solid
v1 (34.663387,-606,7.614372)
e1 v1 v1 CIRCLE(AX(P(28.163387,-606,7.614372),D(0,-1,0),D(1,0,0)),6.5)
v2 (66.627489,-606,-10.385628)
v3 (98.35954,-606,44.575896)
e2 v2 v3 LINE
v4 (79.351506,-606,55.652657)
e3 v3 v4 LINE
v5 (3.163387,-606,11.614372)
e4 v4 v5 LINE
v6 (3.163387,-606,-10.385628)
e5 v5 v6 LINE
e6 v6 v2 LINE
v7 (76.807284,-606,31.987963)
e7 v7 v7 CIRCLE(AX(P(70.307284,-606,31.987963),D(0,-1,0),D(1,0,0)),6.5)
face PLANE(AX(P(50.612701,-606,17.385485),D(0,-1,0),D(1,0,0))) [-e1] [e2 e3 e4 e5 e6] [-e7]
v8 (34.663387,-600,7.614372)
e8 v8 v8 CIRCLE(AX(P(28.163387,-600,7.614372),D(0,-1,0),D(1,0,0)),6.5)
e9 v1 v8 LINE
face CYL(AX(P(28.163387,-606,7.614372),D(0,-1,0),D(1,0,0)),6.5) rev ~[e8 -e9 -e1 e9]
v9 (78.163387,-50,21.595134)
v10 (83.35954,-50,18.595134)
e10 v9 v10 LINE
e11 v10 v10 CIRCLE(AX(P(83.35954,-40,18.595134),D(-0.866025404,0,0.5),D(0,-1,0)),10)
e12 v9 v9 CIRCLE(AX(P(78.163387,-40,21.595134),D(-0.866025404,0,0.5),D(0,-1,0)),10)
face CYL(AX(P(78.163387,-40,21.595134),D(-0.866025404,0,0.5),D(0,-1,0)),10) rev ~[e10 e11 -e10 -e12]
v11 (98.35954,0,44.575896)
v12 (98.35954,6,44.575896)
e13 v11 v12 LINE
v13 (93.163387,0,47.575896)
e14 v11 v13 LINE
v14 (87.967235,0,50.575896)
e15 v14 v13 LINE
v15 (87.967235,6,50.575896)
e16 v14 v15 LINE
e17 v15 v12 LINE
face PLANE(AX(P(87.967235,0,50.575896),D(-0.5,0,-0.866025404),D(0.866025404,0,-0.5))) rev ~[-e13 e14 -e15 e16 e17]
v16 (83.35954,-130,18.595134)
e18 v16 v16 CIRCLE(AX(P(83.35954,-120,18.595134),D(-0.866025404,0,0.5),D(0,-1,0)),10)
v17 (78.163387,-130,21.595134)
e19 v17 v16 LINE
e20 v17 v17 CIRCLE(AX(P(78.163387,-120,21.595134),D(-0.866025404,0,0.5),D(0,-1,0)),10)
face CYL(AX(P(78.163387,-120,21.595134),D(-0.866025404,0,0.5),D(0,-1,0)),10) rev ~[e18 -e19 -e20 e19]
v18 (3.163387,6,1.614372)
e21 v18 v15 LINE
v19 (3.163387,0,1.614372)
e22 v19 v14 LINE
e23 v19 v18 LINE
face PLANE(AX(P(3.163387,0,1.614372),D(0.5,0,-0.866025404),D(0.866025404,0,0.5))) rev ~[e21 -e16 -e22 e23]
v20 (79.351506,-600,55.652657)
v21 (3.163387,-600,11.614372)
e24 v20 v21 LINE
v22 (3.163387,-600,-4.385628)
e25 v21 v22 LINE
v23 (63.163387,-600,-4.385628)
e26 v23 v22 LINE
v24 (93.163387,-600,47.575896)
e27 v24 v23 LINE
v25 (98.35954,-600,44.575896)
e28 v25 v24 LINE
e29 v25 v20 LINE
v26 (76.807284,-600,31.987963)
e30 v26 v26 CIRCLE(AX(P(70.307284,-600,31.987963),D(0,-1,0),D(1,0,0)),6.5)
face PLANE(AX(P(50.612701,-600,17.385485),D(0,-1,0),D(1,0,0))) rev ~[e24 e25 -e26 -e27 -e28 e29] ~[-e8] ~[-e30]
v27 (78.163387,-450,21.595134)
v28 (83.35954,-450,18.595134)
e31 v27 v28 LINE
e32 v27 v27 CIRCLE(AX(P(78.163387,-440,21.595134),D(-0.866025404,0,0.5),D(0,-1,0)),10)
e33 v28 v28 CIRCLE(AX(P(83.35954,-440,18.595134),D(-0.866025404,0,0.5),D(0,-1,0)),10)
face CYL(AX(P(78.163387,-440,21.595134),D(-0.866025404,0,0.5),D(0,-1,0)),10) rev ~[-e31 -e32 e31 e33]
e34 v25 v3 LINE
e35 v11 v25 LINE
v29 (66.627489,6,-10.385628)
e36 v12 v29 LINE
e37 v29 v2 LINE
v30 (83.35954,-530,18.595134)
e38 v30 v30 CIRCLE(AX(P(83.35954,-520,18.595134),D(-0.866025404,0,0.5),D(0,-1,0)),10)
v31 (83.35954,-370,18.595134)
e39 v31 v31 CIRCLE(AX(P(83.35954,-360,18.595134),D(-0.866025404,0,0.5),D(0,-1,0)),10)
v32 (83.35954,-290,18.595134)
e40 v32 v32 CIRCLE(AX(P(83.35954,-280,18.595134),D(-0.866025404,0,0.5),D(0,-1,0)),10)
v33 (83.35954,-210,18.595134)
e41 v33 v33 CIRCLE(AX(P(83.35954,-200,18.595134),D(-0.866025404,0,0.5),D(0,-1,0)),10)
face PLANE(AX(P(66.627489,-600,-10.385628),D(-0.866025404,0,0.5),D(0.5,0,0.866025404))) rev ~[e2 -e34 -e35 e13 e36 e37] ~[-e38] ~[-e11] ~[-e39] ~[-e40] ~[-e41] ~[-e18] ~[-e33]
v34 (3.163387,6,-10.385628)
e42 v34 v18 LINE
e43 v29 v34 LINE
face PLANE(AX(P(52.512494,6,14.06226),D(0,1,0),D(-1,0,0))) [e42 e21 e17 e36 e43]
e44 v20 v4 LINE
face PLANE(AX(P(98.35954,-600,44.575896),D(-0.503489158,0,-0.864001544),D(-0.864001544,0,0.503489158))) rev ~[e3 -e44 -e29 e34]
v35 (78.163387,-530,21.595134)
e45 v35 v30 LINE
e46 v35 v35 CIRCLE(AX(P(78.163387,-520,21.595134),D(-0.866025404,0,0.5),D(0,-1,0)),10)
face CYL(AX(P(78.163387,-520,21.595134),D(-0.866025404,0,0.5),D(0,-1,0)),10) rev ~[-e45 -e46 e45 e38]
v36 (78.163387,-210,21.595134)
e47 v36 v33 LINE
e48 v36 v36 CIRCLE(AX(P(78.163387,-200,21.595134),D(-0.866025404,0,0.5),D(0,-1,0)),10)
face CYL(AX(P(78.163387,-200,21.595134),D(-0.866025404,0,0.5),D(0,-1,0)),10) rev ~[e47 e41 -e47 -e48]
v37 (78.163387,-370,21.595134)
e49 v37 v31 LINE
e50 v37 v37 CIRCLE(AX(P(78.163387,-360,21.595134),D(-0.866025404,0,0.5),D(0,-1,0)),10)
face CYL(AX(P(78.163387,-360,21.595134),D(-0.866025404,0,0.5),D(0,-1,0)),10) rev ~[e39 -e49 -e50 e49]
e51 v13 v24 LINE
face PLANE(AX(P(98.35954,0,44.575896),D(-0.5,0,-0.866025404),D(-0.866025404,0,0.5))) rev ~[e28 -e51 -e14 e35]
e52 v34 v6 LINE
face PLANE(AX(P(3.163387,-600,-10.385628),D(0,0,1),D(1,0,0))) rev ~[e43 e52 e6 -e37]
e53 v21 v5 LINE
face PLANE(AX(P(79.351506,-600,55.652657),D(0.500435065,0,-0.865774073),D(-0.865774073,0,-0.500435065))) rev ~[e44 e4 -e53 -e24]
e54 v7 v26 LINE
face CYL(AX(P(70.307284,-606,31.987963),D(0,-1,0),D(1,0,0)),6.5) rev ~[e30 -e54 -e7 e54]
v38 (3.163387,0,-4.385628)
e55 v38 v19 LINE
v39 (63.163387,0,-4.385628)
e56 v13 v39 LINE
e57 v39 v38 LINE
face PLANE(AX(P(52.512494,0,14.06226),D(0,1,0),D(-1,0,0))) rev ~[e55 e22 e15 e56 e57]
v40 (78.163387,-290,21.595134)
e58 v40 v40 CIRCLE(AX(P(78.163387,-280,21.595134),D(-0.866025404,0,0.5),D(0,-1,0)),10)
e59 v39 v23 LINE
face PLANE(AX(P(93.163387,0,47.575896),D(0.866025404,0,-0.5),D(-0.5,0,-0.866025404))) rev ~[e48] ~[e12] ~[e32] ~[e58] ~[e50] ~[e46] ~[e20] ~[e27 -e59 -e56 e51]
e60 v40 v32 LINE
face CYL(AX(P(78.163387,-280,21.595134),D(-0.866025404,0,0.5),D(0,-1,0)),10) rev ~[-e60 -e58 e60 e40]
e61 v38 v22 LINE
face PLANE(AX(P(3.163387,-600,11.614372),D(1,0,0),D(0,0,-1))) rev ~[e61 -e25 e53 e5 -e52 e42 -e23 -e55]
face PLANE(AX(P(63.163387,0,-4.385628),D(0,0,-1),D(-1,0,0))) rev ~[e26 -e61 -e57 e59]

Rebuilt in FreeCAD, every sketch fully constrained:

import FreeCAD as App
import Part
import Sketcher
from FreeCAD import Vector
Q = App.Units.Quantity

doc = App.newDocument("Part")
body = doc.addObject("PartDesign::Body", "Body")

# Sketch on XZ plane
sketch1 = body.newObject("Sketcher::SketchObject", "Sketch")
sketch1.AttachmentSupport = (doc.getObject("XZ_Plane"), [""])
sketch1.MapMode = "FlatFace"
sketch1.addGeometry([
    Part.LineSegment(Vector(3, -4, 0), Vector(3, -10, 0)),  # 0
    Part.LineSegment(Vector(3, -10, 0), Vector(67, -10, 0)),  # 1
    Part.LineSegment(Vector(67, -10, 0), Vector(98, 45, 0)),  # 2
    Part.LineSegment(Vector(98, 45, 0), Vector(93, 48, 0)),  # 3
    Part.LineSegment(Vector(93, 48, 0), Vector(63, -4, 0)),  # 4
    Part.LineSegment(Vector(63, -4, 0), Vector(3, -4, 0)),  # 5
], False)
sketch1.addConstraint([
    Sketcher.Constraint("Coincident", 0, 2, 1, 1),
    Sketcher.Constraint("Coincident", 1, 2, 2, 1),
    Sketcher.Constraint("Coincident", 2, 2, 3, 1),
    Sketcher.Constraint("Coincident", 3, 2, 4, 1),
    Sketcher.Constraint("Coincident", 4, 2, 5, 1),
    Sketcher.Constraint("Coincident", 5, 2, 0, 1),
    Sketcher.Constraint("Vertical", 0),
    Sketcher.Constraint("Horizontal", 1),
    Sketcher.Constraint("Horizontal", 5),
    Sketcher.Constraint("Perpendicular", 2, 3),
    Sketcher.Constraint("Perpendicular", 3, 4),
    Sketcher.Constraint("DistanceX", 5, 2, 5, 1, 60.0),
    Sketcher.Constraint("DistanceY", 0, 2, 0, 1, 6.0),
    Sketcher.Constraint("Angle", 2, Q("60 deg")),
    Sketcher.Constraint("Distance", 3, 6.0),
    Sketcher.Constraint("Distance", 4, 60.0),
    Sketcher.Constraint("DistanceY", 0, 2, -1, 1, 10.385628),
    Sketcher.Constraint("DistanceX", -1, 1, 1, 2, 66.627489),
])
pad1 = body.newObject("PartDesign::Pad", "Pad")
pad1.Profile = sketch1
pad1.Length = 600

# Sketch on XZ plane
sketch2 = body.newObject("Sketcher::SketchObject", "Sketch001")
sketch2.AttachmentSupport = (doc.getObject("XZ_Plane"), [""])
sketch2.MapMode = "FlatFace"
sketch2.addGeometry([
    Part.LineSegment(Vector(3, -10, 0), Vector(3, 2, 0)),  # 0
    Part.LineSegment(Vector(3, 2, 0), Vector(88, 51, 0)),  # 1
    Part.LineSegment(Vector(88, 51, 0), Vector(98, 45, 0)),  # 2
    Part.LineSegment(Vector(98, 45, 0), Vector(67, -10, 0)),  # 3
    Part.LineSegment(Vector(67, -10, 0), Vector(3, -10, 0)),  # 4
], False)
sketch2.addConstraint([
    Sketcher.Constraint("Coincident", 0, 2, 1, 1),
    Sketcher.Constraint("Coincident", 1, 2, 2, 1),
    Sketcher.Constraint("Coincident", 2, 2, 3, 1),
    Sketcher.Constraint("Coincident", 3, 2, 4, 1),
    Sketcher.Constraint("Coincident", 4, 2, 0, 1),
    Sketcher.Constraint("Vertical", 0),
    Sketcher.Constraint("Horizontal", 4),
    Sketcher.Constraint("Perpendicular", 2, 3),
    Sketcher.Constraint("DistanceY", 0, 1, 0, 2, 12.0),
    Sketcher.Constraint("Angle", 1, Q("30 deg")),
    Sketcher.Constraint("Angle", 2, Q("-30 deg")),
    Sketcher.Constraint("Distance", 2, 12.0),
    Sketcher.Constraint("DistanceX", 4, 2, 4, 1, 63.464102),
    Sketcher.Constraint("DistanceY", -1, 1, 0, 2, 1.614372),
    Sketcher.Constraint("DistanceX", -1, 1, 2, 2, 98.35954),
])
pad2 = body.newObject("PartDesign::Pad", "Pad001")
pad2.Profile = sketch2
pad2.Length = 6
pad2.Reversed = True

# Sketch on an angled plane
sketch3 = body.newObject("Sketcher::SketchObject", "Sketch002")
sketch3.Placement = App.Placement(Vector(49.271573, 0, -28.446956), App.Rotation(Vector(0, -1, 0), Vector(0.5, 0, 0.866025404), Vector(-0.866025404, 0, 0.5), "ZXY"))
sketch3.addGeometry([
    Part.Circle(Vector(40, 58, 0), Vector(0, 0, 1), 10),  # 0
    Part.Circle(Vector(120, 58, 0), Vector(0, 0, 1), 10),  # 1
    Part.Circle(Vector(200, 58, 0), Vector(0, 0, 1), 10),  # 2
    Part.Circle(Vector(360, 58, 0), Vector(0, 0, 1), 10),  # 3
    Part.Circle(Vector(280, 58, 0), Vector(0, 0, 1), 10),  # 4
    Part.Circle(Vector(520, 58, 0), Vector(0, 0, 1), 10),  # 5
    Part.Circle(Vector(440, 58, 0), Vector(0, 0, 1), 10),  # 6
], False)
sketch3.addConstraint([
    Sketcher.Constraint("Equal", 0, 1),
    Sketcher.Constraint("Equal", 1, 2),
    Sketcher.Constraint("Equal", 2, 3),
    Sketcher.Constraint("Equal", 3, 4),
    Sketcher.Constraint("Equal", 4, 5),
    Sketcher.Constraint("Equal", 5, 6),
    Sketcher.Constraint("Horizontal", 0, 3, 1, 3),
    Sketcher.Constraint("Horizontal", 1, 3, 2, 3),
    Sketcher.Constraint("Horizontal", 2, 3, 3, 3),
    Sketcher.Constraint("Horizontal", 3, 3, 4, 3),
    Sketcher.Constraint("Horizontal", 4, 3, 5, 3),
    Sketcher.Constraint("Horizontal", 5, 3, 6, 3),
    Sketcher.Constraint("Diameter", 0, 20.0),
    Sketcher.Constraint("DistanceX", -1, 1, 0, 3, 40.0),
    Sketcher.Constraint("DistanceX", -1, 1, 1, 3, 120.0),
    Sketcher.Constraint("DistanceX", -1, 1, 2, 3, 200.0),
    Sketcher.Constraint("DistanceX", -1, 1, 3, 3, 360.0),
    Sketcher.Constraint("DistanceX", -1, 1, 4, 3, 280.0),
    Sketcher.Constraint("DistanceX", -1, 1, 5, 3, 520.0),
    Sketcher.Constraint("DistanceX", -1, 1, 6, 3, 440.0),
    Sketcher.Constraint("DistanceY", -1, 1, 0, 3, 57.783628),
])
pocket1 = body.newObject("PartDesign::Pocket", "Pocket")
pocket1.Profile = sketch3
pocket1.Length = 25

# Sketch on XZ plane
sketch4 = body.newObject("Sketcher::SketchObject", "Sketch003")
sketch4.AttachmentSupport = (doc.getObject("XZ_Plane"), [""])
sketch4.MapMode = "FlatFace"
sketch4.AttachmentOffset = App.Placement(Vector(0, 0, 600), App.Rotation())
sketch4.addGeometry([
    Part.LineSegment(Vector(3, 12, 0), Vector(3, -10, 0)),  # 0
    Part.LineSegment(Vector(3, -10, 0), Vector(67, -10, 0)),  # 1
    Part.LineSegment(Vector(67, -10, 0), Vector(98, 45, 0)),  # 2
    Part.LineSegment(Vector(98, 45, 0), Vector(79, 56, 0)),  # 3
    Part.LineSegment(Vector(79, 56, 0), Vector(3, 12, 0)),  # 4
], False)
sketch4.addConstraint([
    Sketcher.Constraint("Coincident", 0, 2, 1, 1),
    Sketcher.Constraint("Coincident", 1, 2, 2, 1),
    Sketcher.Constraint("Coincident", 2, 2, 3, 1),
    Sketcher.Constraint("Coincident", 3, 2, 4, 1),
    Sketcher.Constraint("Coincident", 4, 2, 0, 1),
    Sketcher.Constraint("Vertical", 0),
    Sketcher.Constraint("Horizontal", 1),
    Sketcher.Constraint("DistanceY", 0, 2, 0, 1, 22.0),
    Sketcher.Constraint("Angle", 2, Q("60 deg")),
    Sketcher.Constraint("Distance", 3, 22.0),
    Sketcher.Constraint("Distance", 4, 88.0),
    Sketcher.Constraint("DistanceX", 1, 1, 1, 2, 63.464102),
    Sketcher.Constraint("Distance", 2, 63.464102),
    Sketcher.Constraint("DistanceY", 0, 2, -1, 1, 10.385628),
    Sketcher.Constraint("DistanceX", -1, 1, 1, 2, 66.627489),
])
pad3 = body.newObject("PartDesign::Pad", "Pad002")
pad3.Profile = sketch4
pad3.Length = 6

# Sketch on XZ plane
sketch5 = body.newObject("Sketcher::SketchObject", "Sketch004")
sketch5.AttachmentSupport = (doc.getObject("XZ_Plane"), [""])
sketch5.MapMode = "FlatFace"
sketch5.AttachmentOffset = App.Placement(Vector(0, 0, 606), App.Rotation())
sketch5.addGeometry([
    Part.Circle(Vector(70, 32, 0), Vector(0, 0, 1), 6),
    Part.Circle(Vector(28, 8, 0), Vector(0, 0, 1), 6),
], False)
sketch5.addConstraint([
    Sketcher.Constraint("Equal", 0, 1),
    Sketcher.Constraint("Diameter", 0, 13.0),
    Sketcher.Constraint("DistanceY", -1, 1, 1, 3, 7.614372),
    Sketcher.Constraint("DistanceY", 1, 3, 0, 3, 24.373592),
    Sketcher.Constraint("DistanceX", -1, 1, 0, 3, 70.307284),
    Sketcher.Constraint("DistanceX", -1, 1, 1, 3, 28.163387),
])
pocket2 = body.newObject("PartDesign::Pocket", "Pocket001")
pocket2.Profile = sketch5
pocket2.Length = 25

doc.recompute()
